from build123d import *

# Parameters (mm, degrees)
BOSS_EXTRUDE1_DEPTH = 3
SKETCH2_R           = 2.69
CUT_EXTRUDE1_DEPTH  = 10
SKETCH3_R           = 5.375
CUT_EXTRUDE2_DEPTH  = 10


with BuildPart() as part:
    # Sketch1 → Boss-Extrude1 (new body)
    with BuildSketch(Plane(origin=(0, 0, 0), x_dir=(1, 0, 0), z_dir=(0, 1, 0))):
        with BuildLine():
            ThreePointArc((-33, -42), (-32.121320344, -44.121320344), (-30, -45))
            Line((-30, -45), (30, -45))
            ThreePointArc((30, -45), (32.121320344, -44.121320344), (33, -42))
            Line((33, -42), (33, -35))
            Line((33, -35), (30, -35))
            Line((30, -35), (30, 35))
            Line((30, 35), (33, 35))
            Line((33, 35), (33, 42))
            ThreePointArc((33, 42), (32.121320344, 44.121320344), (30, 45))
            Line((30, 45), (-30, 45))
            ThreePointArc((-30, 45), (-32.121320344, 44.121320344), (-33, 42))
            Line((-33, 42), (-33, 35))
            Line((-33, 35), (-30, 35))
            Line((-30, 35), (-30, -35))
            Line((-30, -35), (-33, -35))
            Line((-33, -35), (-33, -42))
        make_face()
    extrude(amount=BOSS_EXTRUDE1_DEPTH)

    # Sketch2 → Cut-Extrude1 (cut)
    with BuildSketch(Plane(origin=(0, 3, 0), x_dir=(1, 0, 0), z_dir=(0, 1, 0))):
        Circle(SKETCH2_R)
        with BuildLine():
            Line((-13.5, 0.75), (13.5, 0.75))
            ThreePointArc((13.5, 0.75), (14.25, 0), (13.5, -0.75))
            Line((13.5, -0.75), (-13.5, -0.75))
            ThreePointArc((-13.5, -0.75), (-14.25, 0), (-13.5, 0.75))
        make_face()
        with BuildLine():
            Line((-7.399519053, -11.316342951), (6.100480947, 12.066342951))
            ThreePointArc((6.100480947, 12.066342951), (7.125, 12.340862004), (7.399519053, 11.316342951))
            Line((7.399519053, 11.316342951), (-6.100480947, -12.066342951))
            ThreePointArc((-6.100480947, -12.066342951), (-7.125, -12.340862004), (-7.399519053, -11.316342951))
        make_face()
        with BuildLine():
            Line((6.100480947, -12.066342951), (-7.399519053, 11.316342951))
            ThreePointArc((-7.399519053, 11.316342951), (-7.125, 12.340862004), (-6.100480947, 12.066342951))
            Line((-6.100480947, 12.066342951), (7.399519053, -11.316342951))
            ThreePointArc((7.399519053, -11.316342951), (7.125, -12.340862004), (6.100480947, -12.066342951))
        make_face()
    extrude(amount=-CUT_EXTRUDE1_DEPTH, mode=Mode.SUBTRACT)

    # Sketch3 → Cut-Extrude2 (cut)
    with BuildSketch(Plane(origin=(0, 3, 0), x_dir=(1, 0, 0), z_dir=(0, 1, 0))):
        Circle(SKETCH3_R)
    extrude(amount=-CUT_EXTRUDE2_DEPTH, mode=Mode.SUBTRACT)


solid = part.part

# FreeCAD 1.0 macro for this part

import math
import FreeCAD as App
import Part
import Sketcher
from FreeCAD import Vector
Q = App.Units.Quantity

doc = App.newDocument("Part")
body = doc.addObject("PartDesign::Body", "Body")

sketch1 = doc.addObject("Sketcher::SketchObject", "Sketch")
body.addObject(sketch1)
sketch1.AttachmentSupport = (doc.XZ_Plane, [""])
sketch1.MapMode = "FlatFace"
sketch1.addGeometry(Part.ArcOfCircle(Part.Circle(Vector(-30, 42, 0), Vector(0, 0, 1), 3), math.radians(90), math.radians(180)), False)
sketch1.addGeometry(Part.LineSegment(Vector(-30, 45, 0), Vector(30, 45, 0)), False)
sketch1.addGeometry(Part.ArcOfCircle(Part.Circle(Vector(30, 42, 0), Vector(0, 0, 1), 3), math.radians(0), math.radians(90)), False)
sketch1.addGeometry(Part.LineSegment(Vector(33, 42, 0), Vector(33, 35, 0)), False)
sketch1.addGeometry(Part.LineSegment(Vector(33, 35, 0), Vector(30, 35, 0)), False)
sketch1.addGeometry(Part.LineSegment(Vector(30, 35, 0), Vector(30, -35, 0)), False)
sketch1.addGeometry(Part.LineSegment(Vector(30, -35, 0), Vector(33, -35, 0)), False)
sketch1.addGeometry(Part.LineSegment(Vector(33, -35, 0), Vector(33, -42, 0)), False)
sketch1.addGeometry(Part.ArcOfCircle(Part.Circle(Vector(30, -42, 0), Vector(0, 0, 1), 3), math.radians(-90), math.radians(0)), False)
sketch1.addGeometry(Part.LineSegment(Vector(30, -45, 0), Vector(-30, -45, 0)), False)
sketch1.addGeometry(Part.ArcOfCircle(Part.Circle(Vector(-30, -42, 0), Vector(0, 0, 1), 3), math.radians(180), math.radians(270)), False)
sketch1.addGeometry(Part.LineSegment(Vector(-33, -42, 0), Vector(-33, -35, 0)), False)
sketch1.addGeometry(Part.LineSegment(Vector(-33, -35, 0), Vector(-30, -35, 0)), False)
sketch1.addGeometry(Part.LineSegment(Vector(-30, -35, 0), Vector(-30, 35, 0)), False)
sketch1.addGeometry(Part.LineSegment(Vector(-30, 35, 0), Vector(-33, 35, 0)), False)
sketch1.addGeometry(Part.LineSegment(Vector(-33, 35, 0), Vector(-33, 42, 0)), False)
sketch1.addConstraint(Sketcher.Constraint("Tangent", 0, 1, 1, 1))
sketch1.addConstraint(Sketcher.Constraint("Tangent", 1, 2, 2, 2))
sketch1.addConstraint(Sketcher.Constraint("Tangent", 2, 1, 3, 1))
sketch1.addConstraint(Sketcher.Constraint("Coincident", 3, 2, 4, 1))
sketch1.addConstraint(Sketcher.Constraint("Coincident", 4, 2, 5, 1))
sketch1.addConstraint(Sketcher.Constraint("Coincident", 5, 2, 6, 1))
sketch1.addConstraint(Sketcher.Constraint("Coincident", 6, 2, 7, 1))
sketch1.addConstraint(Sketcher.Constraint("Tangent", 7, 2, 8, 2))
sketch1.addConstraint(Sketcher.Constraint("Tangent", 8, 1, 9, 1))
sketch1.addConstraint(Sketcher.Constraint("Tangent", 9, 2, 10, 2))
sketch1.addConstraint(Sketcher.Constraint("Tangent", 10, 1, 11, 1))
sketch1.addConstraint(Sketcher.Constraint("Coincident", 11, 2, 12, 1))
sketch1.addConstraint(Sketcher.Constraint("Coincident", 12, 2, 13, 1))
sketch1.addConstraint(Sketcher.Constraint("Coincident", 13, 2, 14, 1))
sketch1.addConstraint(Sketcher.Constraint("Coincident", 14, 2, 15, 1))
sketch1.addConstraint(Sketcher.Constraint("Tangent", 15, 2, 0, 2))
sketch1.addConstraint(Sketcher.Constraint("Horizontal", 1))
sketch1.addConstraint(Sketcher.Constraint("Vertical", 3))
sketch1.addConstraint(Sketcher.Constraint("Horizontal", 4))
sketch1.addConstraint(Sketcher.Constraint("Vertical", 5))
sketch1.addConstraint(Sketcher.Constraint("Horizontal", 6))
sketch1.addConstraint(Sketcher.Constraint("Vertical", 7))
sketch1.addConstraint(Sketcher.Constraint("Horizontal", 9))
sketch1.addConstraint(Sketcher.Constraint("Vertical", 11))
sketch1.addConstraint(Sketcher.Constraint("Horizontal", 12))
sketch1.addConstraint(Sketcher.Constraint("Vertical", 13))
sketch1.addConstraint(Sketcher.Constraint("Horizontal", 14))
sketch1.addConstraint(Sketcher.Constraint("Vertical", 15))
sketch1.addConstraint(Sketcher.Constraint("Equal", 0, 2))
sketch1.addConstraint(Sketcher.Constraint("Equal", 2, 8))
sketch1.addConstraint(Sketcher.Constraint("Equal", 8, 10))
sketch1.addConstraint(Sketcher.Constraint("Symmetric", 0, 3, 8, 3, -1, 1))
sketch1.addConstraint(Sketcher.Constraint("Symmetric", 3, 2, 11, 2, -1, 1))
sketch1.addConstraint(Sketcher.Constraint("Symmetric", 5, 2, 13, 2, -1, 1))
sketch1.addConstraint(Sketcher.Constraint("Symmetric", 6, 2, 11, 2, -2))
sketch1.addConstraint(Sketcher.Constraint("Vertical", 1, 2, 4, 2))
sketch1.addConstraint(Sketcher.Constraint("Radius", 0, Q("3 mm")))
sketch1.addConstraint(Sketcher.Constraint("DistanceX", 1, 1, 1, 2, Q("60 mm")))
sketch1.addConstraint(Sketcher.Constraint("DistanceY", 3, 2, 3, 1, Q("7 mm")))
sketch1.addConstraint(Sketcher.Constraint("DistanceY", 5, 2, 5, 1, Q("70 mm")))
pad1 = doc.addObject("PartDesign::Pad", "Pad")
body.addObject(pad1)
pad1.Profile = sketch1
pad1.Length = 3
pad1.Reversed = True

sketch2 = doc.addObject("Sketcher::SketchObject", "Sketch001")
body.addObject(sketch2)
sketch2.AttachmentSupport = (doc.XZ_Plane, [""])
sketch2.MapMode = "FlatFace"
sketch2.AttachmentOffset = App.Placement(Vector(0, 0, -3), App.Rotation())
sketch2.addGeometry(Part.ArcOfCircle(Part.Circle(Vector(13.5, 0, 0), Vector(0, 0, 1), 0.8), math.radians(-90), math.radians(90)), False)
sketch2.addGeometry(Part.LineSegment(Vector(13.5, -0.8, 0), Vector(2.6, -0.8, 0)), False)
sketch2.addGeometry(Part.ArcOfCircle(Part.Circle(Vector(0, 0, 0), Vector(0, 0, 1), 2.7), math.radians(-44), math.radians(-16)), False)
sketch2.addGeometry(Part.LineSegment(Vector(1.9, -1.9, 0), Vector(7.4, -11.3, 0)), False)
sketch2.addGeometry(Part.ArcOfCircle(Part.Circle(Vector(6.8, -11.7, 0), Vector(0, 0, 1), 0.8), math.radians(-150), math.radians(30)), False)
sketch2.addGeometry(Part.LineSegment(Vector(6.1, -12.1, 0), Vector(0.6, -2.6, 0)), False)
sketch2.addGeometry(Part.ArcOfCircle(Part.Circle(Vector(0, 0, 0), Vector(0, 0, 1), 2.7), math.radians(-104), math.radians(-76)), False)
sketch2.addGeometry(Part.LineSegment(Vector(-0.6, -2.6, 0), Vector(-6.1, -12.1, 0)), False)
sketch2.addGeometry(Part.ArcOfCircle(Part.Circle(Vector(-6.8, -11.7, 0), Vector(0, 0, 1), 0.8), math.radians(150), math.radians(330)), False)
sketch2.addGeometry(Part.LineSegment(Vector(-7.4, -11.3, 0), Vector(-1.9, -1.9, 0)), False)
sketch2.addGeometry(Part.ArcOfCircle(Part.Circle(Vector(0, 0, 0), Vector(0, 0, 1), 2.7), math.radians(-164), math.radians(-136)), False)
sketch2.addGeometry(Part.LineSegment(Vector(-2.6, -0.8, 0), Vector(-13.5, -0.8, 0)), False)
sketch2.addGeometry(Part.ArcOfCircle(Part.Circle(Vector(-13.5, 0, 0), Vector(0, 0, 1), 0.8), math.radians(90), math.radians(270)), False)
sketch2.addGeometry(Part.LineSegment(Vector(-13.5, 0.8, 0), Vector(-2.6, 0.8, 0)), False)
sketch2.addGeometry(Part.ArcOfCircle(Part.Circle(Vector(0, 0, 0), Vector(0, 0, 1), 2.7), math.radians(136), math.radians(164)), False)
sketch2.addGeometry(Part.LineSegment(Vector(-1.9, 1.9, 0), Vector(-7.4, 11.3, 0)), False)
sketch2.addGeometry(Part.ArcOfCircle(Part.Circle(Vector(-6.8, 11.7, 0), Vector(0, 0, 1), 0.8), math.radians(30), math.radians(210)), False)
sketch2.addGeometry(Part.LineSegment(Vector(-6.1, 12.1, 0), Vector(-0.6, 2.6, 0)), False)
sketch2.addGeometry(Part.ArcOfCircle(Part.Circle(Vector(0, 0, 0), Vector(0, 0, 1), 2.7), math.radians(76), math.radians(104)), False)
sketch2.addGeometry(Part.LineSegment(Vector(0.6, 2.6, 0), Vector(6.1, 12.1, 0)), False)
sketch2.addGeometry(Part.ArcOfCircle(Part.Circle(Vector(6.8, 11.7, 0), Vector(0, 0, 1), 0.8), math.radians(-30), math.radians(150)), False)
sketch2.addGeometry(Part.LineSegment(Vector(7.4, 11.3, 0), Vector(1.9, 1.9, 0)), False)
sketch2.addGeometry(Part.ArcOfCircle(Part.Circle(Vector(0, 0, 0), Vector(0, 0, 1), 2.7), math.radians(16), math.radians(44)), False)
sketch2.addGeometry(Part.LineSegment(Vector(2.6, 0.8, 0), Vector(13.5, 0.8, 0)), False)
sketch2.addConstraint(Sketcher.Constraint("Tangent", 0, 1, 1, 1))
sketch2.addConstraint(Sketcher.Constraint("Coincident", 1, 2, 2, 2))
sketch2.addConstraint(Sketcher.Constraint("Coincident", 2, 1, 3, 1))
sketch2.addConstraint(Sketcher.Constraint("Tangent", 3, 2, 4, 2))
sketch2.addConstraint(Sketcher.Constraint("Tangent", 4, 1, 5, 1))
sketch2.addConstraint(Sketcher.Constraint("Coincident", 5, 2, 6, 2))
sketch2.addConstraint(Sketcher.Constraint("Coincident", 6, 1, 7, 1))
sketch2.addConstraint(Sketcher.Constraint("Tangent", 7, 2, 8, 2))
sketch2.addConstraint(Sketcher.Constraint("Tangent", 8, 1, 9, 1))
sketch2.addConstraint(Sketcher.Constraint("Coincident", 9, 2, 10, 2))
sketch2.addConstraint(Sketcher.Constraint("Coincident", 10, 1, 11, 1))
sketch2.addConstraint(Sketcher.Constraint("Tangent", 11, 2, 12, 2))
sketch2.addConstraint(Sketcher.Constraint("Tangent", 12, 1, 13, 1))
sketch2.addConstraint(Sketcher.Constraint("Coincident", 13, 2, 14, 2))
sketch2.addConstraint(Sketcher.Constraint("Coincident", 14, 1, 15, 1))
sketch2.addConstraint(Sketcher.Constraint("Tangent", 15, 2, 16, 2))
sketch2.addConstraint(Sketcher.Constraint("Tangent", 16, 1, 17, 1))
sketch2.addConstraint(Sketcher.Constraint("Coincident", 17, 2, 18, 2))
sketch2.addConstraint(Sketcher.Constraint("Coincident", 18, 1, 19, 1))
sketch2.addConstraint(Sketcher.Constraint("Tangent", 19, 2, 20, 2))
sketch2.addConstraint(Sketcher.Constraint("Tangent", 20, 1, 21, 1))
sketch2.addConstraint(Sketcher.Constraint("Coincident", 21, 2, 22, 2))
sketch2.addConstraint(Sketcher.Constraint("Coincident", 22, 1, 23, 1))
sketch2.addConstraint(Sketcher.Constraint("Tangent", 23, 2, 0, 2))
sketch2.addConstraint(Sketcher.Constraint("Horizontal", 1))
sketch2.addConstraint(Sketcher.Constraint("Horizontal", 11))
sketch2.addConstraint(Sketcher.Constraint("Horizontal", 13))
sketch2.addConstraint(Sketcher.Constraint("Horizontal", 23))
sketch2.addConstraint(Sketcher.Constraint("Coincident", 2, 3, -1, 1))
sketch2.addConstraint(Sketcher.Constraint("Coincident", 6, 3, -1, 1))
sketch2.addConstraint(Sketcher.Constraint("Coincident", 10, 3, -1, 1))
sketch2.addConstraint(Sketcher.Constraint("Coincident", 14, 3, -1, 1))
sketch2.addConstraint(Sketcher.Constraint("Coincident", 18, 3, -1, 1))
sketch2.addConstraint(Sketcher.Constraint("Coincident", 22, 3, -1, 1))
sketch2.addConstraint(Sketcher.Constraint("Equal", 0, 4))
sketch2.addConstraint(Sketcher.Constraint("Equal", 2, 6))
sketch2.addConstraint(Sketcher.Constraint("Equal", 4, 8))
sketch2.addConstraint(Sketcher.Constraint("Equal", 6, 10))
sketch2.addConstraint(Sketcher.Constraint("Equal", 8, 12))
sketch2.addConstraint(Sketcher.Constraint("Equal", 10, 14))
sketch2.addConstraint(Sketcher.Constraint("Equal", 12, 16))
sketch2.addConstraint(Sketcher.Constraint("Equal", 14, 18))
sketch2.addConstraint(Sketcher.Constraint("Equal", 16, 20))
sketch2.addConstraint(Sketcher.Constraint("Equal", 18, 22))
sketch2.addConstraint(Sketcher.Constraint("Symmetric", 0, 3, 12, 3, -1, 1))
sketch2.addConstraint(Sketcher.Constraint("Symmetric", 4, 3, 16, 3, -1, 1))
sketch2.addConstraint(Sketcher.Constraint("Symmetric", 8, 3, 20, 3, -1, 1))
sketch2.addConstraint(Sketcher.Constraint("Symmetric", 4, 3, 8, 3, -2))
sketch2.addConstraint(Sketcher.Constraint("PointOnObject", 0, 3, -1))
sketch2.addConstraint(Sketcher.Constraint("Parallel", 3, 5))
sketch2.addConstraint(Sketcher.Constraint("Parallel", 7, 9))
sketch2.addConstraint(Sketcher.Constraint("Parallel", 5, 15))
sketch2.addConstraint(Sketcher.Constraint("Parallel", 15, 17))
sketch2.addConstraint(Sketcher.Constraint("Parallel", 9, 19))
sketch2.addConstraint(Sketcher.Constraint("Parallel", 19, 21))
sketch2.addConstraint(Sketcher.Constraint("Horizontal", 5, 2, 6, 1))
sketch2.addConstraint(Sketcher.Constraint("Equal", 3, 5))
sketch2.addConstraint(Sketcher.Constraint("Angle", 3, Q("-60 deg")))
sketch2.addConstraint(Sketcher.Constraint("Radius", 0, Q("0.75 mm")))
sketch2.addConstraint(Sketcher.Constraint("Radius", 2, Q("2.69 mm")))
sketch2.addConstraint(Sketcher.Constraint("DistanceX", -1, 1, 0, 3, Q("13.5 mm")))
sketch2.addConstraint(Sketcher.Constraint("DistanceX", 8, 3, 4, 3, Q("13.5 mm")))
pocket1 = doc.addObject("PartDesign::Pocket", "Pocket")
body.addObject(pocket1)
pocket1.Profile = sketch2
pocket1.Length = 10
pocket1.Reversed = True

sketch3 = doc.addObject("Sketcher::SketchObject", "Sketch002")
body.addObject(sketch3)
sketch3.AttachmentSupport = (doc.XZ_Plane, [""])
sketch3.MapMode = "FlatFace"
sketch3.AttachmentOffset = App.Placement(Vector(0, 0, -3), App.Rotation())
sketch3.addGeometry(Part.Circle(Vector(0, 0, 0), Vector(0, 0, 1), 5), False)
sketch3.addConstraint(Sketcher.Constraint("Coincident", 0, 3, -1, 1))
sketch3.addConstraint(Sketcher.Constraint("Diameter", 0, Q("10.75 mm")))
pocket2 = doc.addObject("PartDesign::Pocket", "Pocket001")
body.addObject(pocket2)
pocket2.Profile = sketch3
pocket2.Length = 10
pocket2.Reversed = True

doc.recompute()
